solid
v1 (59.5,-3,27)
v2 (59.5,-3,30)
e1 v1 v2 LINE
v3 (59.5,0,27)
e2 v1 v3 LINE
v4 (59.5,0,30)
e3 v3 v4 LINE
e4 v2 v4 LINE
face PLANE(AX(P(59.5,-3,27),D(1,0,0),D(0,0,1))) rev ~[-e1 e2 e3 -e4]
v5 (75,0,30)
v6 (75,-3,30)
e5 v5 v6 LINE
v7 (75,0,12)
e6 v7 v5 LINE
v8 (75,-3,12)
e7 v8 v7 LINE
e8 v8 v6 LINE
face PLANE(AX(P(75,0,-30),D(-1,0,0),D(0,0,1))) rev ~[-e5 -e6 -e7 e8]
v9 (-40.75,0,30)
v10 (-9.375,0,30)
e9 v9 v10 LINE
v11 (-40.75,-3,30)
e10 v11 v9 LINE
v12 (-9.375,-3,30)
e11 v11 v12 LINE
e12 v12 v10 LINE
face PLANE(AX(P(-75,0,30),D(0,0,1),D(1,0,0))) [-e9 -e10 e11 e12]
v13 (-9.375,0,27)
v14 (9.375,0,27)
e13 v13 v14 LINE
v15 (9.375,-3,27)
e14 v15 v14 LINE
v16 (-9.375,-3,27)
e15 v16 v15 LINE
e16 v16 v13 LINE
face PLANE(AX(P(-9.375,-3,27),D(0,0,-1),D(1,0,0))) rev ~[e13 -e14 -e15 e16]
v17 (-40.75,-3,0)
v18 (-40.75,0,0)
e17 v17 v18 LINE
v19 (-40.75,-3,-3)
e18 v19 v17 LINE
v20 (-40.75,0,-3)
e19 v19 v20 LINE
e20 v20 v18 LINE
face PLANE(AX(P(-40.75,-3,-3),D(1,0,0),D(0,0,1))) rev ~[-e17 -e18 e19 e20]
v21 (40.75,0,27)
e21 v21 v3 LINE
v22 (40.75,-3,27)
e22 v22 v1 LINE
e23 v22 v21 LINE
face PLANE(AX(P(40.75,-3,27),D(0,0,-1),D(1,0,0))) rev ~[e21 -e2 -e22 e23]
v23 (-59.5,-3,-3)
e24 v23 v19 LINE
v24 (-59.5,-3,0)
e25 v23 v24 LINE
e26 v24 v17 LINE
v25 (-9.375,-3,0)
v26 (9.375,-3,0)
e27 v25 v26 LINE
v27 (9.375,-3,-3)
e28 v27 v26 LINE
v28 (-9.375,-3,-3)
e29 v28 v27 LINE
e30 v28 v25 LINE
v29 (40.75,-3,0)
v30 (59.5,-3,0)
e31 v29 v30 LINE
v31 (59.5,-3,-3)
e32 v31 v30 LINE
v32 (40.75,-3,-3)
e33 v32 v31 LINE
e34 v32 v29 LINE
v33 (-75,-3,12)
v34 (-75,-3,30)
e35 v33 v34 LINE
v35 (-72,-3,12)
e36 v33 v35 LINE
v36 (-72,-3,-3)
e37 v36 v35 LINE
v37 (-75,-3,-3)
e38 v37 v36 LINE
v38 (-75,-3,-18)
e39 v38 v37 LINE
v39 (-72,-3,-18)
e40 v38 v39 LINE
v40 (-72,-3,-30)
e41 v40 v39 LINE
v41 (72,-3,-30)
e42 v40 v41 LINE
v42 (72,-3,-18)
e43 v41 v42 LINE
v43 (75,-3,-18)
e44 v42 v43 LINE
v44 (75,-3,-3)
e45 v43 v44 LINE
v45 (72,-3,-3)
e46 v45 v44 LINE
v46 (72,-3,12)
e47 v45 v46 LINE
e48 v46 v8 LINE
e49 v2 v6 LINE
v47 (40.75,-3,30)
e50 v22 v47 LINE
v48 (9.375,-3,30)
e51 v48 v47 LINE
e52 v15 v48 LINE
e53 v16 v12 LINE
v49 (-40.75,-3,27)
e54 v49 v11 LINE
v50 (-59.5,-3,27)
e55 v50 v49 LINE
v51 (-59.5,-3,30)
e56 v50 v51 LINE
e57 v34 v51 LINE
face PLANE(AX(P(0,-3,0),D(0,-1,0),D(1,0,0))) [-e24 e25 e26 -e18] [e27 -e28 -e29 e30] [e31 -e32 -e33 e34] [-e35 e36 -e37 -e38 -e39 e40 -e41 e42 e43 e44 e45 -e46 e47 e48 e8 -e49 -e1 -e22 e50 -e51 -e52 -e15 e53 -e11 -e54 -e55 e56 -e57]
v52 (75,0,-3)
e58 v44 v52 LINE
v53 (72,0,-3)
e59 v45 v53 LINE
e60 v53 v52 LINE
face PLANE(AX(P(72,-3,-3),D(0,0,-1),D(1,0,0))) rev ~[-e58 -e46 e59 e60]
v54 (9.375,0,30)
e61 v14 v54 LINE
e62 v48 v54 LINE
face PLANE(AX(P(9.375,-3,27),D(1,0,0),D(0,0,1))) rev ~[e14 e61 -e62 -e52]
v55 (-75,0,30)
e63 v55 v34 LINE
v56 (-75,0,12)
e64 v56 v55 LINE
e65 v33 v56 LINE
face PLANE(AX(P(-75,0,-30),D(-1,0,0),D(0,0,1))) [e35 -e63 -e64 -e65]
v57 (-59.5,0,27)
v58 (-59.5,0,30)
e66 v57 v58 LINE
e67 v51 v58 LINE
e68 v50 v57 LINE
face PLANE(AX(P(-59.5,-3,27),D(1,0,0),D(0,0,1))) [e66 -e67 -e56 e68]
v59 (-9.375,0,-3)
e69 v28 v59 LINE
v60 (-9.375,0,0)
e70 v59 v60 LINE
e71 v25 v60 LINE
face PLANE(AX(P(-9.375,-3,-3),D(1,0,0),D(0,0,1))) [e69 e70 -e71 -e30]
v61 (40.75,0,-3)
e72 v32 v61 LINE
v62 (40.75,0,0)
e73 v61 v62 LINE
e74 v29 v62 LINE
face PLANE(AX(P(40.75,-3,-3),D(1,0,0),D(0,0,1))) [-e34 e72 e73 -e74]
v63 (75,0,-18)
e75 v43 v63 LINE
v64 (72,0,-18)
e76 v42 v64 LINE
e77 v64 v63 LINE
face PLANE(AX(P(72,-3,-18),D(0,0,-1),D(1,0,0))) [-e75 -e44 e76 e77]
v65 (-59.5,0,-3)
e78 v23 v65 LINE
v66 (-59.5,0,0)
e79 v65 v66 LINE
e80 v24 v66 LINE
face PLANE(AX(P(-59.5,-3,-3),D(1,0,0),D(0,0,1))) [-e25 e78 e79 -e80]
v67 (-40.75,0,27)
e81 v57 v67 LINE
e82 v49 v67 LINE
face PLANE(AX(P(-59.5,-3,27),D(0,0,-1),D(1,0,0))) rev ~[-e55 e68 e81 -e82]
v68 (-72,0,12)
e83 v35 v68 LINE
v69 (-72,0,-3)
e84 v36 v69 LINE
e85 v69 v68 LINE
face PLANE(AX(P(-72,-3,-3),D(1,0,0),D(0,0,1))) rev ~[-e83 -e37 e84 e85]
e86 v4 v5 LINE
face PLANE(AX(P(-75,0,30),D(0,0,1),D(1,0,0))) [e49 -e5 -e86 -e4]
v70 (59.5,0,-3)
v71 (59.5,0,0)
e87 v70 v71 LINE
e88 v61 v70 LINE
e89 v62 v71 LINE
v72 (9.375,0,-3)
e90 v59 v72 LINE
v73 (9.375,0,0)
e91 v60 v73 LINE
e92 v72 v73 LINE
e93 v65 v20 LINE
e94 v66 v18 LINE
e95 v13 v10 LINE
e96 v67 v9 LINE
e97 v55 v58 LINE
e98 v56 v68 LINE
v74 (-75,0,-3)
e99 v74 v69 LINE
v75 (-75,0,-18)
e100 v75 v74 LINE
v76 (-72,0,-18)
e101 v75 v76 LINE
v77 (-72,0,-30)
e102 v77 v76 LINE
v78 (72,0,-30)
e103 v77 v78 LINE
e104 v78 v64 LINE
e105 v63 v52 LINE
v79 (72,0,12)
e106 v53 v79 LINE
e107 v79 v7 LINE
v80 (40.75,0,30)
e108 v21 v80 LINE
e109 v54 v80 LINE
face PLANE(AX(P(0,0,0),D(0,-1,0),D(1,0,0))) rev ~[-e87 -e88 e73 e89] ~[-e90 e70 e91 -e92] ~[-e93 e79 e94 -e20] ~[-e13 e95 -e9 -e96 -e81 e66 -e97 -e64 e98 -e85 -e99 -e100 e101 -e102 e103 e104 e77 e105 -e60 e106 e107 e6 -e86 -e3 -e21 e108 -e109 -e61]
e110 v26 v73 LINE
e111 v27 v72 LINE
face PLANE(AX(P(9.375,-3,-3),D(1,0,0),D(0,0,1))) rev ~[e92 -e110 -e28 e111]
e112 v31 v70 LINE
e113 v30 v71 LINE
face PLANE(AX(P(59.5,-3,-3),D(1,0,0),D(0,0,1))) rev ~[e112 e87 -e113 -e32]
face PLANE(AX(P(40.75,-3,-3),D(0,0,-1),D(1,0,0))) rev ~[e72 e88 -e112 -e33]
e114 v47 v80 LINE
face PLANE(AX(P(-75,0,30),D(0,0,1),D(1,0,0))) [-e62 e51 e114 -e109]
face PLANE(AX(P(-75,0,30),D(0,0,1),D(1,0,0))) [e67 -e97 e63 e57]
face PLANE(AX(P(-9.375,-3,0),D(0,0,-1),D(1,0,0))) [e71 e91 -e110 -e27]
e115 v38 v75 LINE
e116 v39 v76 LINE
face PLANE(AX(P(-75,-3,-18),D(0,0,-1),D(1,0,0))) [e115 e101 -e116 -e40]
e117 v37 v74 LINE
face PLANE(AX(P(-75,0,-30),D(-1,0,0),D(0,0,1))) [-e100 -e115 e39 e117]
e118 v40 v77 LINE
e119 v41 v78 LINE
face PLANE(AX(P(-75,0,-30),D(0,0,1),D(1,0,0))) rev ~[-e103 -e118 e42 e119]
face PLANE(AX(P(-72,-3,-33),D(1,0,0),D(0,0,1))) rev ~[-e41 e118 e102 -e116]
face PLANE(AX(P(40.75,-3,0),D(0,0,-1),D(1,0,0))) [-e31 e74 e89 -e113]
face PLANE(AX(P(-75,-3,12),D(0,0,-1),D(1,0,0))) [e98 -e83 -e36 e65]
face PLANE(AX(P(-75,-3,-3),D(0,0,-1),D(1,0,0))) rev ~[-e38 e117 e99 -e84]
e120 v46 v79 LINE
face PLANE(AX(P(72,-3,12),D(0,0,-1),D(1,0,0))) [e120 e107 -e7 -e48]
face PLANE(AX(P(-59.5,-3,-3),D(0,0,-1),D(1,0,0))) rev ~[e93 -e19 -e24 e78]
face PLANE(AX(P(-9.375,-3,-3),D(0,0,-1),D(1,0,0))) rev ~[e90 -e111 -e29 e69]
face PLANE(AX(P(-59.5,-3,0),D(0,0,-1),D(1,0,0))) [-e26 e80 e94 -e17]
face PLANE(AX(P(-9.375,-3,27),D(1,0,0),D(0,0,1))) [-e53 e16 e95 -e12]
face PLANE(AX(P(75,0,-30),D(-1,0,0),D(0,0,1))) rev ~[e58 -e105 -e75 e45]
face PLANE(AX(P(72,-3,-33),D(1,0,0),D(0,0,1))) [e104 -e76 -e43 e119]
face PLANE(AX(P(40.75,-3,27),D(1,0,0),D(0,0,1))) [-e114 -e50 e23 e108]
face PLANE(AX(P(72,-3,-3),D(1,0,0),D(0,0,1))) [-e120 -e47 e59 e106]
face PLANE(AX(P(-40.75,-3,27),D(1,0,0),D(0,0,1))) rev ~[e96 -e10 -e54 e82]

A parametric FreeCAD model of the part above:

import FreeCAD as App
import Part
import Sketcher

V = App.Vector
Q = App.Units.Quantity

doc = App.newDocument("Part")
body = doc.addObject("PartDesign::Body", "Body")

sketch1 = body.newObject("Sketcher::SketchObject", "Sketch")
sketch1.AttachmentSupport = (doc.getObject("XZ_Plane"), [""])
sketch1.MapMode = "FlatFace"
sketch1.addGeometry([
    Part.LineSegment(V(-75, 30, 0), V(-75, -30, 0)),
    Part.LineSegment(V(-75, -30, 0), V(75, -30, 0)),
    Part.LineSegment(V(75, -30, 0), V(75, 30, 0)),
    Part.LineSegment(V(75, 30, 0), V(-75, 30, 0)),
], False)
sketch1.addConstraint([
    Sketcher.Constraint("Coincident", 0, 2, 1, 1),
    Sketcher.Constraint("Coincident", 1, 2, 2, 1),
    Sketcher.Constraint("Coincident", 2, 2, 3, 1),
    Sketcher.Constraint("Coincident", 3, 2, 0, 1),
    Sketcher.Constraint("Vertical", 0),
    Sketcher.Constraint("Horizontal", 1),
    Sketcher.Constraint("Vertical", 2),
    Sketcher.Constraint("Horizontal", 3),
    Sketcher.Constraint("Symmetric", 0, 2, 2, 2, -1, 1),
    Sketcher.Constraint("DistanceX", 1, 1, 1, 2, Q("150 mm")),
    Sketcher.Constraint("DistanceY", 0, 2, 0, 1, Q("60 mm")),
])
pad1 = body.newObject("PartDesign::Pad", "Pad")
pad1.Profile = sketch1
pad1.Length = 3

sketch2 = body.newObject("Sketcher::SketchObject", "Sketch001")
sketch2.AttachmentSupport = (doc.getObject("XZ_Plane"), [""])
sketch2.MapMode = "FlatFace"
sketch2.AttachmentOffset = App.Placement(V(0, 0, 3), App.Rotation())
sketch2.addGeometry([
    Part.LineSegment(V(-59.5, 30, 0), V(-59.5, 27, 0)),
    Part.LineSegment(V(-59.5, 27, 0), V(-40.8, 27, 0)),
    Part.LineSegment(V(-40.8, 27, 0), V(-40.8, 30, 0)),
    Part.LineSegment(V(-40.8, 30, 0), V(-59.5, 30, 0)),
    Part.LineSegment(V(-59.5, 0, 0), V(-59.5, -3, 0)),
    Part.LineSegment(V(-59.5, -3, 0), V(-40.8, -3, 0)),
    Part.LineSegment(V(-40.8, -3, 0), V(-40.8, 0, 0)),
    Part.LineSegment(V(-40.8, 0, 0), V(-59.5, 0, 0)),
    Part.LineSegment(V(-9.4, 30, 0), V(-9.4, 27, 0)),
    Part.LineSegment(V(-9.4, 27, 0), V(9.4, 27, 0)),
    Part.LineSegment(V(9.4, 27, 0), V(9.4, 30, 0)),
    Part.LineSegment(V(9.4, 30, 0), V(-9.4, 30, 0)),
    Part.LineSegment(V(-9.4, 0, 0), V(-9.4, -3, 0)),
    Part.LineSegment(V(-9.4, -3, 0), V(9.4, -3, 0)),
    Part.LineSegment(V(9.4, -3, 0), V(9.4, 0, 0)),
    Part.LineSegment(V(9.4, 0, 0), V(-9.4, 0, 0)),
    Part.LineSegment(V(40.8, 30, 0), V(40.8, 27, 0)),
    Part.LineSegment(V(40.8, 27, 0), V(59.5, 27, 0)),
    Part.LineSegment(V(59.5, 27, 0), V(59.5, 30, 0)),
    Part.LineSegment(V(59.5, 30, 0), V(40.8, 30, 0)),
    Part.LineSegment(V(40.8, 0, 0), V(40.8, -3, 0)),
    Part.LineSegment(V(40.8, -3, 0), V(59.5, -3, 0)),
    Part.LineSegment(V(59.5, -3, 0), V(59.5, 0, 0)),
    Part.LineSegment(V(59.5, 0, 0), V(40.8, 0, 0)),
], False)
sketch2.addConstraint([
    Sketcher.Constraint("Coincident", 0, 2, 1, 1),
    Sketcher.Constraint("Coincident", 1, 2, 2, 1),
    Sketcher.Constraint("Coincident", 2, 2, 3, 1),
    Sketcher.Constraint("Coincident", 3, 2, 0, 1),
    Sketcher.Constraint("Coincident", 4, 2, 5, 1),
    Sketcher.Constraint("Coincident", 5, 2, 6, 1),
    Sketcher.Constraint("Coincident", 6, 2, 7, 1),
    Sketcher.Constraint("Coincident", 7, 2, 4, 1),
    Sketcher.Constraint("Coincident", 8, 2, 9, 1),
    Sketcher.Constraint("Coincident", 9, 2, 10, 1),
    Sketcher.Constraint("Coincident", 10, 2, 11, 1),
    Sketcher.Constraint("Coincident", 11, 2, 8, 1),
    Sketcher.Constraint("Coincident", 12, 2, 13, 1),
    Sketcher.Constraint("Coincident", 13, 2, 14, 1),
    Sketcher.Constraint("Coincident", 14, 2, 15, 1),
    Sketcher.Constraint("Coincident", 15, 2, 12, 1),
    Sketcher.Constraint("Coincident", 16, 2, 17, 1),
    Sketcher.Constraint("Coincident", 17, 2, 18, 1),
    Sketcher.Constraint("Coincident", 18, 2, 19, 1),
    Sketcher.Constraint("Coincident", 19, 2, 16, 1),
    Sketcher.Constraint("Coincident", 20, 2, 21, 1),
    Sketcher.Constraint("Coincident", 21, 2, 22, 1),
    Sketcher.Constraint("Coincident", 22, 2, 23, 1),
    Sketcher.Constraint("Coincident", 23, 2, 20, 1),
    Sketcher.Constraint("Vertical", 0),
    Sketcher.Constraint("Horizontal", 1),
    Sketcher.Constraint("Vertical", 2),
    Sketcher.Constraint("Horizontal", 3),
    Sketcher.Constraint("Vertical", 4),
    Sketcher.Constraint("Horizontal", 5),
    Sketcher.Constraint("Vertical", 6),
    Sketcher.Constraint("Horizontal", 7),
    Sketcher.Constraint("Vertical", 8),
    Sketcher.Constraint("Horizontal", 9),
    Sketcher.Constraint("Vertical", 10),
    Sketcher.Constraint("Horizontal", 11),
    Sketcher.Constraint("Vertical", 12),
    Sketcher.Constraint("Horizontal", 13),
    Sketcher.Constraint("Vertical", 14),
    Sketcher.Constraint("Horizontal", 15),
    Sketcher.Constraint("Vertical", 16),
    Sketcher.Constraint("Horizontal", 17),
    Sketcher.Constraint("Vertical", 18),
    Sketcher.Constraint("Horizontal", 19),
    Sketcher.Constraint("Vertical", 20),
    Sketcher.Constraint("Horizontal", 21),
    Sketcher.Constraint("Vertical", 22),
    Sketcher.Constraint("Horizontal", 23),
    Sketcher.Constraint("Symmetric", 14, 2, 15, 2, -1, 1),
    Sketcher.Constraint("Symmetric", 7, 2, 22, 2, -1, 1),
    Sketcher.Constraint("Symmetric", 1, 2, 16, 2, -2),
    Sketcher.Constraint("Symmetric", 3, 2, 18, 2, -2),
    Sketcher.Constraint("Symmetric", 5, 2, 20, 2, -2),
    Sketcher.Constraint("PointOnObject", 6, 2, -1),
    Sketcher.Constraint("Horizontal", 1, 2, 8, 2),
    Sketcher.Constraint("Horizontal", 3, 2, 10, 2),
    Sketcher.Constraint("Horizontal", 5, 2, 12, 2),
    Sketcher.Constraint("Vertical", 3, 2, 4, 2),
    Sketcher.Constraint("Vertical", 2, 2, 5, 2),
    Sketcher.Constraint("Vertical", 11, 2, 12, 2),
    Sketcher.Constraint("Vertical", 10, 2, 13, 2),
    Sketcher.Constraint("Equal", 7, 9),
    Sketcher.Constraint("Equal", 2, 4),
    Sketcher.Constraint("DistanceY", 0, 2, 0, 1, Q("3 mm")),
    Sketcher.Constraint("DistanceY", -1, 1, 0, 2, Q("27 mm")),
    Sketcher.Constraint("DistanceX", 1, 1, 1, 2, Q("18.75 mm")),
    Sketcher.Constraint("DistanceX", 0, 2, -1, 1, Q("59.5 mm")),
])
pocket1 = body.newObject("PartDesign::Pocket", "Pocket")
pocket1.Profile = sketch2
pocket1.Type = "ThroughAll"

sketch3 = body.newObject("Sketcher::SketchObject", "Sketch002")
sketch3.AttachmentSupport = (doc.getObject("XZ_Plane"), [""])
sketch3.MapMode = "FlatFace"
sketch3.AttachmentOffset = App.Placement(V(0, 0, 3), App.Rotation())
sketch3.addGeometry([
    Part.LineSegment(V(-75, 12, 0), V(-75, -3, 0)),
    Part.LineSegment(V(-75, -3, 0), V(-72, -3, 0)),
    Part.LineSegment(V(-72, -3, 0), V(-72, 12, 0)),
    Part.LineSegment(V(-72, 12, 0), V(-75, 12, 0)),
    Part.LineSegment(V(-75, -18, 0), V(-75, -33, 0)),
    Part.LineSegment(V(-75, -33, 0), V(-72, -33, 0)),
    Part.LineSegment(V(-72, -33, 0), V(-72, -18, 0)),
    Part.LineSegment(V(-72, -18, 0), V(-75, -18, 0)),
    Part.LineSegment(V(72, 12, 0), V(72, -3, 0)),
    Part.LineSegment(V(72, -3, 0), V(75, -3, 0)),
    Part.LineSegment(V(75, -3, 0), V(75, 12, 0)),
    Part.LineSegment(V(75, 12, 0), V(72, 12, 0)),
    Part.LineSegment(V(72, -18, 0), V(72, -33, 0)),
    Part.LineSegment(V(72, -33, 0), V(75, -33, 0)),
    Part.LineSegment(V(75, -33, 0), V(75, -18, 0)),
    Part.LineSegment(V(75, -18, 0), V(72, -18, 0)),
], False)
sketch3.addConstraint([
    Sketcher.Constraint("Coincident", 0, 2, 1, 1),
    Sketcher.Constraint("Coincident", 1, 2, 2, 1),
    Sketcher.Constraint("Coincident", 2, 2, 3, 1),
    Sketcher.Constraint("Coincident", 3, 2, 0, 1),
    Sketcher.Constraint("Coincident", 4, 2, 5, 1),
    Sketcher.Constraint("Coincident", 5, 2, 6, 1),
    Sketcher.Constraint("Coincident", 6, 2, 7, 1),
    Sketcher.Constraint("Coincident", 7, 2, 4, 1),
    Sketcher.Constraint("Coincident", 8, 2, 9, 1),
    Sketcher.Constraint("Coincident", 9, 2, 10, 1),
    Sketcher.Constraint("Coincident", 10, 2, 11, 1),
    Sketcher.Constraint("Coincident", 11, 2, 8, 1),
    Sketcher.Constraint("Coincident", 12, 2, 13, 1),
    Sketcher.Constraint("Coincident", 13, 2, 14, 1),
    Sketcher.Constraint("Coincident", 14, 2, 15, 1),
    Sketcher.Constraint("Coincident", 15, 2, 12, 1),
    Sketcher.Constraint("Vertical", 0),
    Sketcher.Constraint("Horizontal", 1),
    Sketcher.Constraint("Vertical", 2),
    Sketcher.Constraint("Horizontal", 3),
    Sketcher.Constraint("Vertical", 4),
    Sketcher.Constraint("Horizontal", 5),
    Sketcher.Constraint("Vertical", 6),
    Sketcher.Constraint("Horizontal", 7),
    Sketcher.Constraint("Vertical", 8),
    Sketcher.Constraint("Horizontal", 9),
    Sketcher.Constraint("Vertical", 10),
    Sketcher.Constraint("Horizontal", 11),
    Sketcher.Constraint("Vertical", 12),
    Sketcher.Constraint("Horizontal", 13),
    Sketcher.Constraint("Vertical", 14),
    Sketcher.Constraint("Horizontal", 15),
    Sketcher.Constraint("Symmetric", 1, 2, 8, 2, -2),
    Sketcher.Constraint("Symmetric", 3, 2, 10, 2, -2),
    Sketcher.Constraint("Symmetric", 5, 2, 12, 2, -2),
    Sketcher.Constraint("Symmetric", 7, 2, 14, 2, -2),
    Sketcher.Constraint("Vertical", 3, 2, 4, 2),
    Sketcher.Constraint("Vertical", 2, 2, 5, 2),
    Sketcher.Constraint("Equal", 2, 4),
    Sketcher.Constraint("DistanceX", 1, 1, 1, 2, Q("3 mm")),
    Sketcher.Constraint("DistanceY", 0, 2, 0, 1, Q("15 mm")),
    Sketcher.Constraint("DistanceX", 0, 2, -1, 1, Q("75 mm")),
    Sketcher.Constraint("DistanceY", 0, 2, -1, 1, Q("3 mm")),
    Sketcher.Constraint("DistanceY", 4, 2, -1, 1, Q("33 mm")),
])
pocket2 = body.newObject("PartDesign::Pocket", "Pocket001")
pocket2.Profile = sketch3
pocket2.Type = "ThroughAll"

doc.recompute()
